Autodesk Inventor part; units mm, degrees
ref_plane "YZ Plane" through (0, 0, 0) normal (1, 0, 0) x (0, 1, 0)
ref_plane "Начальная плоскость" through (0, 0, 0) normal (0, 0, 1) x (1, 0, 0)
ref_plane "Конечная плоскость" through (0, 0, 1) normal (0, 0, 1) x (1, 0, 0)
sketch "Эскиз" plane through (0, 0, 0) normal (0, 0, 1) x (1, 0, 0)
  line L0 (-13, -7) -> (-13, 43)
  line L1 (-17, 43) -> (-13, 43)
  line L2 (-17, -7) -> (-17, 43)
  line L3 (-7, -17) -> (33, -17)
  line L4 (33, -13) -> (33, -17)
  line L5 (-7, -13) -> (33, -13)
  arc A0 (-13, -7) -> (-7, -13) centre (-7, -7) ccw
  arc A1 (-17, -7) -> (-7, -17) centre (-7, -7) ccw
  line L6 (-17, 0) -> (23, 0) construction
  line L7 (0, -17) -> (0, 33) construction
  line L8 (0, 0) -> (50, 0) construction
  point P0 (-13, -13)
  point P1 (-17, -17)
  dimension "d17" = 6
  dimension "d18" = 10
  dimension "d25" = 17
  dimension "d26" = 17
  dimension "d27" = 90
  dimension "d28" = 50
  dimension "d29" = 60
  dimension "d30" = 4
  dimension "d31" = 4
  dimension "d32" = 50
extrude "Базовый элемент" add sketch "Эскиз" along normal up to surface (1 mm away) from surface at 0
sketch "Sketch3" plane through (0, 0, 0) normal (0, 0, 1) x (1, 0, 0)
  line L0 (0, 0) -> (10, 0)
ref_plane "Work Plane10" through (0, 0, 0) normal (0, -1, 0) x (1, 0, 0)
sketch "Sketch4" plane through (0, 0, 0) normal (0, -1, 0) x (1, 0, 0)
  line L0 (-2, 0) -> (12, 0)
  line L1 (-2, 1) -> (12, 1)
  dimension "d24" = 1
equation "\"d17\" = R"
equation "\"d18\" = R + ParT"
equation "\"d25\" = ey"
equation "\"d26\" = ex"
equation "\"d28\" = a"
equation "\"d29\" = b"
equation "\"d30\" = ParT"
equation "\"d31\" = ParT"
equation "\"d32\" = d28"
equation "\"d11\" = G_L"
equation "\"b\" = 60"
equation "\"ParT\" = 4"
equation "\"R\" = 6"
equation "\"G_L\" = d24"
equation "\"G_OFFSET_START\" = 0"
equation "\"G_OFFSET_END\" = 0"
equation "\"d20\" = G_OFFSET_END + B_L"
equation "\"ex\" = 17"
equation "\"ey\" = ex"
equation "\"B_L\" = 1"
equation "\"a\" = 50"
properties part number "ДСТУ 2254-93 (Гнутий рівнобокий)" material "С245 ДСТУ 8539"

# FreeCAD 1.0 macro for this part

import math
import FreeCAD as App
import Part
import Sketcher

V = App.Vector
Q = App.Units.Quantity

doc = App.newDocument("Part")
params = doc.addObject("Spreadsheet::Sheet", "Params")
for row, (alias, value) in enumerate([
    ("sketch1_radius", "6 mm"),
    ("sketch1_radius2", "10 mm"),
    ("sketch1_height", "50 mm"),
    ("pad1_length", "1 mm"),
], start=1):
    params.set(f"A{row}", alias)
    params.set(f"B{row}", "=" + value)
    params.setAlias(f"B{row}", alias)

body = doc.addObject("PartDesign::Body", "Body")

# Sketch on XY plane
sketch1 = doc.addObject("Sketcher::SketchObject", "Sketch")
body.addObject(sketch1)
sketch1.AttachmentSupport = (doc.XY_Plane, [""])
sketch1.MapMode = "FlatFace"
sketch1.addGeometry([
    Part.ArcOfCircle(Part.Circle(V(-7, -7, 0), V(0, 0, 1), 6), math.radians(180), math.radians(270)),  # 0
    Part.LineSegment(V(-13, -7, 0), V(-13, 43, 0)),  # 1
    Part.LineSegment(V(-13, 43, 0), V(-17, 43, 0)),  # 2
    Part.LineSegment(V(-17, 43, 0), V(-17, -7, 0)),  # 3
    Part.ArcOfCircle(Part.Circle(V(-7, -7, 0), V(0, 0, 1), 10), math.radians(180), math.radians(270)),  # 4
    Part.LineSegment(V(-7, -17, 0), V(33, -17, 0)),  # 5
    Part.LineSegment(V(33, -17, 0), V(33, -13, 0)),  # 6
    Part.LineSegment(V(33, -13, 0), V(-7, -13, 0)),  # 7
], False)
sketch1.addConstraint([
    Sketcher.Constraint("Tangent", 0, 1, 1, 1),
    Sketcher.Constraint("Coincident", 1, 2, 2, 1),
    Sketcher.Constraint("Coincident", 2, 2, 3, 1),
    Sketcher.Constraint("Tangent", 3, 2, 4, 1),
    Sketcher.Constraint("Tangent", 4, 2, 5, 1),
    Sketcher.Constraint("Coincident", 5, 2, 6, 1),
    Sketcher.Constraint("Coincident", 6, 2, 7, 1),
    Sketcher.Constraint("Tangent", 7, 2, 0, 2),
    Sketcher.Constraint("Vertical", 1),
    Sketcher.Constraint("Horizontal", 2),
    Sketcher.Constraint("Vertical", 3),
    Sketcher.Constraint("Horizontal", 5),
    Sketcher.Constraint("Vertical", 6),
    Sketcher.Constraint("Horizontal", 7),
    Sketcher.Constraint("Coincident", 4, 3, 0, 3),
    Sketcher.Constraint("Radius", 0, Q("6 mm")),
    Sketcher.Constraint("Radius", 4, Q("10 mm")),
    Sketcher.Constraint("DistanceY", 1, 1, 1, 2, Q("50 mm")),
    Sketcher.Constraint("DistanceX", 2, 2, -1, 1, Q("17 mm")),
    Sketcher.Constraint("DistanceY", 4, 2, -1, 1, Q("17 mm")),
    Sketcher.Constraint("DistanceX", 3, 2, 5, 2, Q("50 mm")),
])
sketch1.setExpression("Constraints[15]", "Params.sketch1_radius")
sketch1.setExpression("Constraints[16]", "Params.sketch1_radius2")
sketch1.setExpression("Constraints[17]", "Params.sketch1_height")
pad1 = doc.addObject("PartDesign::Pad", "Pad")
body.addObject(pad1)
pad1.Profile = sketch1
pad1.setExpression("Length", "Params.pad1_length")

doc.recompute()
